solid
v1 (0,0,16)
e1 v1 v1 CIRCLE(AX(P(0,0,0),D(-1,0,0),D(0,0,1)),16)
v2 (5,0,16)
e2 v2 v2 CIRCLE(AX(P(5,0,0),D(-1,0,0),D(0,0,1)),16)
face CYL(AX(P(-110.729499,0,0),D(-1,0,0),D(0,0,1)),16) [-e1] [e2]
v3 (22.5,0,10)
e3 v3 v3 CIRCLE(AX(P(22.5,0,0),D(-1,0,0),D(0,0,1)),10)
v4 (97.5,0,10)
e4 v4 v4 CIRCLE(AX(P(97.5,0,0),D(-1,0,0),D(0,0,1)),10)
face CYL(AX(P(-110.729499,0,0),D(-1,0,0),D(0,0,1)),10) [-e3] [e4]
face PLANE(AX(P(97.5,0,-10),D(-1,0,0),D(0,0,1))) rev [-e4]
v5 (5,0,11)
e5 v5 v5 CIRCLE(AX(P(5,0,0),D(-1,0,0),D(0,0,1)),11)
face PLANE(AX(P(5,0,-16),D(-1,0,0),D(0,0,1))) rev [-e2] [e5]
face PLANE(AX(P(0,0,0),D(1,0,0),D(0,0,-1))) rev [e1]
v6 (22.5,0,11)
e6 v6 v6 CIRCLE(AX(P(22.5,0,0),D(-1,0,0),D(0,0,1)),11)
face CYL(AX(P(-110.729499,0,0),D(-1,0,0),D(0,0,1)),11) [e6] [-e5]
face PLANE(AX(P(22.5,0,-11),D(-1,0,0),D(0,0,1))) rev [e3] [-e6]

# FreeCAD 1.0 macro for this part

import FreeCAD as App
import Part
import Sketcher
Q = App.Units.Quantity

doc = App.newDocument("Part")
body = doc.addObject("PartDesign::Body", "Body")

# Sketch on XZ plane
sketch1 = doc.addObject("Sketcher::SketchObject", "Sketch")
body.addObject(sketch1)
sketch1.AttachmentSupport = (doc.XZ_Plane, [""])
sketch1.MapMode = "FlatFace"
sketch1.addGeometry(Part.LineSegment(App.Vector(0, -16, 0), App.Vector(0, 0, 0)), False)
sketch1.addGeometry(Part.LineSegment(App.Vector(0, 0, 0), App.Vector(97.5, 0, 0)), False)
sketch1.addGeometry(Part.LineSegment(App.Vector(97.5, 0, 0), App.Vector(97.5, -10, 0)), False)
sketch1.addGeometry(Part.LineSegment(App.Vector(97.5, -10, 0), App.Vector(22.5, -10, 0)), False)
sketch1.addGeometry(Part.LineSegment(App.Vector(22.5, -10, 0), App.Vector(22.5, -11, 0)), False)
sketch1.addGeometry(Part.LineSegment(App.Vector(22.5, -11, 0), App.Vector(5, -11, 0)), False)
sketch1.addGeometry(Part.LineSegment(App.Vector(5, -11, 0), App.Vector(5, -16, 0)), False)
sketch1.addGeometry(Part.LineSegment(App.Vector(5, -16, 0), App.Vector(0, -16, 0)), False)
sketch1.addConstraint(Sketcher.Constraint("Coincident", 0, 2, 1, 1))
sketch1.addConstraint(Sketcher.Constraint("Coincident", 1, 2, 2, 1))
sketch1.addConstraint(Sketcher.Constraint("Coincident", 2, 2, 3, 1))
sketch1.addConstraint(Sketcher.Constraint("Coincident", 3, 2, 4, 1))
sketch1.addConstraint(Sketcher.Constraint("Coincident", 4, 2, 5, 1))
sketch1.addConstraint(Sketcher.Constraint("Coincident", 5, 2, 6, 1))
sketch1.addConstraint(Sketcher.Constraint("Coincident", 6, 2, 7, 1))
sketch1.addConstraint(Sketcher.Constraint("Coincident", 7, 2, 0, 1))
sketch1.addConstraint(Sketcher.Constraint("Vertical", 0))
sketch1.addConstraint(Sketcher.Constraint("Horizontal", 1))
sketch1.addConstraint(Sketcher.Constraint("Vertical", 2))
sketch1.addConstraint(Sketcher.Constraint("Horizontal", 3))
sketch1.addConstraint(Sketcher.Constraint("Vertical", 4))
sketch1.addConstraint(Sketcher.Constraint("Horizontal", 5))
sketch1.addConstraint(Sketcher.Constraint("Vertical", 6))
sketch1.addConstraint(Sketcher.Constraint("Horizontal", 7))
sketch1.addConstraint(Sketcher.Constraint("Coincident", 0, 2, -1, 1))
sketch1.addConstraint(Sketcher.Constraint("Equal", 7, 6))
sketch1.addConstraint(Sketcher.Constraint("DistanceX", 3, 2, 3, 1, Q("75 mm")))
sketch1.addConstraint(Sketcher.Constraint("DistanceX", 7, 2, 7, 1, Q("5 mm")))
sketch1.addConstraint(Sketcher.Constraint("DistanceY", 0, 1, 0, 2, Q("16 mm")))
sketch1.addConstraint(Sketcher.Constraint("DistanceY", 2, 2, 2, 1, Q("10 mm")))
sketch1.addConstraint(Sketcher.Constraint("DistanceX", 1, 1, 1, 2, Q("97.5 mm")))
revolution = doc.addObject("PartDesign::Revolution", "Revolution")
body.addObject(revolution)
revolution.Profile = sketch1
revolution.ReferenceAxis = (sketch1, ["H_Axis"])
revolution.Angle = 360

doc.recompute()
